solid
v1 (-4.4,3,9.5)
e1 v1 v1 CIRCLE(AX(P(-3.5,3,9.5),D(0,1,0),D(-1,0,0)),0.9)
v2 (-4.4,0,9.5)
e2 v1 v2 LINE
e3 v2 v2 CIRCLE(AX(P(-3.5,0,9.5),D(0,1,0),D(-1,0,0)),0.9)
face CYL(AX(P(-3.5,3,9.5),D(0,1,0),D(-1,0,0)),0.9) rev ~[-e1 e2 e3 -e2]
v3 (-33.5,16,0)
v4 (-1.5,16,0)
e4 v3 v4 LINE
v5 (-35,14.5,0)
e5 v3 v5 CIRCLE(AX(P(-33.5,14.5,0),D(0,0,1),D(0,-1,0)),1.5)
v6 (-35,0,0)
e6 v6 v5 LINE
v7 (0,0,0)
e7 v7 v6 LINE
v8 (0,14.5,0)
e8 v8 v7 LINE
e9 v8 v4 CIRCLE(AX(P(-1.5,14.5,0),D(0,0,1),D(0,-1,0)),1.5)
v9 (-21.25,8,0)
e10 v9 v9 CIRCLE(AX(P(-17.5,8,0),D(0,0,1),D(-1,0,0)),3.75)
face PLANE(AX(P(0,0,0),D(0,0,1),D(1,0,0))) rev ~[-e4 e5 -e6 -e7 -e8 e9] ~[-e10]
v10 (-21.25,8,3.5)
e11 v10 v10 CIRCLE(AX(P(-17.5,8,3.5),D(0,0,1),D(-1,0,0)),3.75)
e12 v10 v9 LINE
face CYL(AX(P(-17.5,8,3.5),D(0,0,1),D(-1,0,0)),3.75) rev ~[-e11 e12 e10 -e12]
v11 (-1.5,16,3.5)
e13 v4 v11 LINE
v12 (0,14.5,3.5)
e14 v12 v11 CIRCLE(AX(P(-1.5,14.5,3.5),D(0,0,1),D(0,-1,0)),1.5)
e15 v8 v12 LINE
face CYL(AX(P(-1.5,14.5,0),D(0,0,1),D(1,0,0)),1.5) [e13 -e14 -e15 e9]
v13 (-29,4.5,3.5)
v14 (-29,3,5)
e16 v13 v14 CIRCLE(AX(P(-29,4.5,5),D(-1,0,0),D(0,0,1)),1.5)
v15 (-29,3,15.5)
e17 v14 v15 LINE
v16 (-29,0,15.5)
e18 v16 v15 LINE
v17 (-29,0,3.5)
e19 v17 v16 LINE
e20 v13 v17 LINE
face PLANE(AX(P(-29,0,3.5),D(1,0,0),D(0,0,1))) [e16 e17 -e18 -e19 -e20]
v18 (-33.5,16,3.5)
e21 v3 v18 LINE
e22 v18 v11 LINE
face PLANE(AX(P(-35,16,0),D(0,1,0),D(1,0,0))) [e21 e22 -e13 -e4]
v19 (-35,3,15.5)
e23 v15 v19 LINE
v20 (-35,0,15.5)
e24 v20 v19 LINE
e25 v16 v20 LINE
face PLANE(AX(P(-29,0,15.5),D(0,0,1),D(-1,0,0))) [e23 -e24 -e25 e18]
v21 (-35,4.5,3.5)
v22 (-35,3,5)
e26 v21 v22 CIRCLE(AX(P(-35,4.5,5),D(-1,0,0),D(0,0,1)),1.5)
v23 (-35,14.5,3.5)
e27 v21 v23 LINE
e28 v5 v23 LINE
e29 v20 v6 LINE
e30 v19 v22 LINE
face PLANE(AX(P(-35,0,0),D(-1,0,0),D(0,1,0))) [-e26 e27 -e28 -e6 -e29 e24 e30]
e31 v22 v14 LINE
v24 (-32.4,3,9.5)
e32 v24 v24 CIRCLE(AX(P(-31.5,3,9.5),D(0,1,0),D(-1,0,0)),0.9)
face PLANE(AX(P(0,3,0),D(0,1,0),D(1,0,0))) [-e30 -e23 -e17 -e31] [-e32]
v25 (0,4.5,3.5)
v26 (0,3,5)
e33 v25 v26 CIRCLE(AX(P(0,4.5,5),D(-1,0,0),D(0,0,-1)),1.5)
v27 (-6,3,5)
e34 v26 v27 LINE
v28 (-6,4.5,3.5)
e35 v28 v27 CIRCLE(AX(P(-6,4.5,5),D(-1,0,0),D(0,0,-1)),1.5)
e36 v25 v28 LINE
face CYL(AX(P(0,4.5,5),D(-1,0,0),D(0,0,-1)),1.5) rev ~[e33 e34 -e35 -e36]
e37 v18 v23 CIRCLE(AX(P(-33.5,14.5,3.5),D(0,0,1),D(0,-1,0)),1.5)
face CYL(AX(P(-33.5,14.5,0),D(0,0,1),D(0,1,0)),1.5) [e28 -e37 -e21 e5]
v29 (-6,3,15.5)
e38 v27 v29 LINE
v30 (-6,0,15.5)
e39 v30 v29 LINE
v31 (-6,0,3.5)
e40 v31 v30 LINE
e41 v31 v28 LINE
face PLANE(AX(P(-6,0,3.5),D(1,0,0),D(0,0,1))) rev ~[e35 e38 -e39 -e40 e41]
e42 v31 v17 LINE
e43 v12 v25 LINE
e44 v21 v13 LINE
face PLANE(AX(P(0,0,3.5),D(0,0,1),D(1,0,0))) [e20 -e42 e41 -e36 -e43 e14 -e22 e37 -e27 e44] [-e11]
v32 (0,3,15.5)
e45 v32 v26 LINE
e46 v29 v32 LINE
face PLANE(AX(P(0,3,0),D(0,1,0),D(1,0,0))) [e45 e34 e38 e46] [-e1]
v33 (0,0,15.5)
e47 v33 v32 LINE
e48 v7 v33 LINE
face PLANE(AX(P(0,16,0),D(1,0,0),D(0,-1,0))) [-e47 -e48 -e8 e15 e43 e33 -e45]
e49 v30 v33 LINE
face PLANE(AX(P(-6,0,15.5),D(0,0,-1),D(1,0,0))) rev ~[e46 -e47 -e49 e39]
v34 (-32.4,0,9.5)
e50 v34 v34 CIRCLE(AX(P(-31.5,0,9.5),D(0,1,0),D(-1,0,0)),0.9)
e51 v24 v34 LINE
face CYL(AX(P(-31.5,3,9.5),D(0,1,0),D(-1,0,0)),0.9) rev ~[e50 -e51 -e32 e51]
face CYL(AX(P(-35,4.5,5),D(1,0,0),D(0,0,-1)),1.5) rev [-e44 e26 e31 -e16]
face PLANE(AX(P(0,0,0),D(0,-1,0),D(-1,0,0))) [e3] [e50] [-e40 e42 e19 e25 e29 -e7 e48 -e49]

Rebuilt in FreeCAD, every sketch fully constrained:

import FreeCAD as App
import Part
import Sketcher
Q = App.Units.Quantity


def edges_at(feature, points):
    """Names of the edges that pass closest to the given points."""
    edges = feature.Shape.Edges
    near = lambda p: min(range(len(edges)), key=lambda i: edges[i].distToShape(Part.Vertex(*p))[0])
    return sorted({f"Edge{near(p) + 1}" for p in points})

doc = App.newDocument("Part")
body = doc.addObject("PartDesign::Body", "Body")

sketch1 = body.newObject("Sketcher::SketchObject", "Sketch")
sketch1.AttachmentSupport = (doc.getObject("XY_Plane"), [""])
sketch1.MapMode = "FlatFace"
sketch1.addGeometry([
    Part.LineSegment(App.Vector(-35, 0, 0), App.Vector(0, 0, 0)),
    Part.LineSegment(App.Vector(0, 0, 0), App.Vector(0, 16, 0)),
    Part.LineSegment(App.Vector(0, 16, 0), App.Vector(-35, 16, 0)),
    Part.LineSegment(App.Vector(-35, 16, 0), App.Vector(-35, 0, 0)),
], False)
sketch1.addConstraint([
    Sketcher.Constraint("Coincident", 0, 2, 1, 1),
    Sketcher.Constraint("Coincident", 1, 2, 2, 1),
    Sketcher.Constraint("Coincident", 2, 2, 3, 1),
    Sketcher.Constraint("Coincident", 3, 2, 0, 1),
    Sketcher.Constraint("Horizontal", 0),
    Sketcher.Constraint("Vertical", 1),
    Sketcher.Constraint("Horizontal", 2),
    Sketcher.Constraint("Vertical", 3),
    Sketcher.Constraint("Coincident", 0, 2, -1, 1),
    Sketcher.Constraint("DistanceX", 0, 1, 0, 2, Q("35 mm")),
    Sketcher.Constraint("DistanceY", 1, 1, 1, 2, Q("16 mm")),
])
pad1 = body.newObject("PartDesign::Pad", "Pad")
pad1.Profile = sketch1
pad1.Length = 3.5

sketch2 = body.newObject("Sketcher::SketchObject", "Sketch001")
sketch2.AttachmentSupport = (doc.getObject("XZ_Plane"), [""])
sketch2.MapMode = "FlatFace"
sketch2.addGeometry([
    Part.LineSegment(App.Vector(0, 16, 0), App.Vector(0, 4, 0)),
    Part.LineSegment(App.Vector(0, 4, 0), App.Vector(-6, 4, 0)),
    Part.LineSegment(App.Vector(-6, 4, 0), App.Vector(-6, 16, 0)),
    Part.LineSegment(App.Vector(-6, 16, 0), App.Vector(0, 16, 0)),
    Part.LineSegment(App.Vector(-29, 4, 0), App.Vector(-35, 4, 0)),
    Part.LineSegment(App.Vector(-35, 4, 0), App.Vector(-35, 16, 0)),
    Part.LineSegment(App.Vector(-35, 16, 0), App.Vector(-29, 16, 0)),
    Part.LineSegment(App.Vector(-29, 16, 0), App.Vector(-29, 4, 0)),
], False)
sketch2.addConstraint([
    Sketcher.Constraint("Coincident", 0, 2, 1, 1),
    Sketcher.Constraint("Coincident", 1, 2, 2, 1),
    Sketcher.Constraint("Coincident", 2, 2, 3, 1),
    Sketcher.Constraint("Coincident", 3, 2, 0, 1),
    Sketcher.Constraint("Coincident", 4, 2, 5, 1),
    Sketcher.Constraint("Coincident", 5, 2, 6, 1),
    Sketcher.Constraint("Coincident", 6, 2, 7, 1),
    Sketcher.Constraint("Coincident", 7, 2, 4, 1),
    Sketcher.Constraint("Vertical", 0),
    Sketcher.Constraint("Horizontal", 1),
    Sketcher.Constraint("Vertical", 2),
    Sketcher.Constraint("Horizontal", 3),
    Sketcher.Constraint("Horizontal", 4),
    Sketcher.Constraint("Vertical", 5),
    Sketcher.Constraint("Horizontal", 6),
    Sketcher.Constraint("Vertical", 7),
    Sketcher.Constraint("PointOnObject", 0, 2, -2),
    Sketcher.Constraint("Horizontal", 1, 2, 4, 2),
    Sketcher.Constraint("Horizontal", 3, 2, 5, 2),
    Sketcher.Constraint("Equal", 3, 4),
    Sketcher.Constraint("DistanceY", 0, 2, 0, 1, Q("12 mm")),
    Sketcher.Constraint("DistanceX", 6, 2, 2, 2, Q("23 mm")),
    Sketcher.Constraint("DistanceX", 1, 2, 1, 1, Q("6 mm")),
    Sketcher.Constraint("DistanceY", -1, 1, 0, 2, Q("3.5 mm")),
])
pad2 = body.newObject("PartDesign::Pad", "Pad001")
pad2.Profile = sketch2
pad2.Length = 3
pad2.Reversed = True

sketch3 = body.newObject("Sketcher::SketchObject", "Sketch002")
sketch3.AttachmentSupport = (doc.getObject("XY_Plane"), [""])
sketch3.MapMode = "FlatFace"
sketch3.AttachmentOffset = App.Placement(App.Vector(0, 0, 3.5), App.Rotation())
sketch3.addGeometry(Part.Circle(App.Vector(-17.5, 8, 0), App.Vector(0, 0, 1), 3.8), False)
sketch3.addConstraint([
    Sketcher.Constraint("Diameter", 0, Q("7.5 mm")),
    Sketcher.Constraint("DistanceY", -1, 1, 0, 3, Q("8 mm")),
    Sketcher.Constraint("DistanceX", 0, 3, -1, 1, Q("17.5 mm")),
])
pocket1 = body.newObject("PartDesign::Pocket", "Pocket")
pocket1.Profile = sketch3
pocket1.Length = 3.5

sketch4 = body.newObject("Sketcher::SketchObject", "Sketch003")
sketch4.AttachmentSupport = (doc.getObject("XZ_Plane"), [""])
sketch4.MapMode = "FlatFace"
sketch4.AttachmentOffset = App.Placement(App.Vector(0, 0, -3), App.Rotation())
sketch4.addGeometry([
    Part.Circle(App.Vector(-3.5, 9.5, 0), App.Vector(0, 0, 1), 0.9),
    Part.Circle(App.Vector(-31.5, 9.5, 0), App.Vector(0, 0, 1), 0.9),
], False)
sketch4.addConstraint([
    Sketcher.Constraint("Equal", 0, 1),
    Sketcher.Constraint("Horizontal", 0, 3, 1, 3),
    Sketcher.Constraint("Diameter", 0, Q("1.8 mm")),
    Sketcher.Constraint("DistanceX", 1, 3, 0, 3, Q("28 mm")),
    Sketcher.Constraint("DistanceX", 0, 3, -1, 1, Q("3.5 mm")),
    Sketcher.Constraint("DistanceY", -1, 1, 0, 3, Q("9.5 mm")),
])
pocket2 = body.newObject("PartDesign::Pocket", "Pocket001")
pocket2.Profile = sketch4
pocket2.Length = 3
pocket2.Reversed = True
doc.recompute()

fillet = body.newObject("PartDesign::Fillet", "Fillet")
fillet.Base = (pocket2, edges_at(pocket2, [(-3, 3, 3.5), (-32, 3, 3.5)]))
fillet.Radius = 1.5
doc.recompute()

fillet2 = body.newObject("PartDesign::Fillet", "Fillet001")
fillet2.Base = (fillet, edges_at(fillet, [(0, 16, 1.75), (-35, 16, 1.75)]))
fillet2.Radius = 1.5

doc.recompute()
